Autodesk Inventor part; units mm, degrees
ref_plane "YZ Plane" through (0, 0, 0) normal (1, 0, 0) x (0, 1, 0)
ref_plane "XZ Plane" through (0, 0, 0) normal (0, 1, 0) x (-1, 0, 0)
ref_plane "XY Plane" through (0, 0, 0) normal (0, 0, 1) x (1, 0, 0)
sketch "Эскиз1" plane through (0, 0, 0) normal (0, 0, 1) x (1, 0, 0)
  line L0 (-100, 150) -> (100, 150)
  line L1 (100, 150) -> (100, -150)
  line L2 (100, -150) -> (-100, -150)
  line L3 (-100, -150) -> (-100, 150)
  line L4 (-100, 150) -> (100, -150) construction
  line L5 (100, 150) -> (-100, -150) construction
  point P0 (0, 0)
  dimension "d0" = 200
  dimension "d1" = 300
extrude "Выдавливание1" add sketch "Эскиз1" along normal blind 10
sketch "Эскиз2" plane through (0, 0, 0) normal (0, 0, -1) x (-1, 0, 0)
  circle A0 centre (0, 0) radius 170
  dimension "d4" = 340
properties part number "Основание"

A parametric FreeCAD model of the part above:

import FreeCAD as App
import Part
import Sketcher


def add_polygon(sketch, points):
    """Adds a closed chain of lines whose ends are joined by coincident constraints."""
    first, n = sketch.GeometryCount, len(points)
    for a, b in zip(points, points[1:] + points[:1]):
        sketch.addGeometry(Part.LineSegment(App.Vector(*a, 0), App.Vector(*b, 0)), False)
    for i in range(n):
        sketch.addConstraint(Sketcher.Constraint("Coincident", first + i, 2, first + (i + 1) % n, 1))

doc = App.newDocument("Part")
body = doc.addObject("PartDesign::Body", "Body")

# Sketch on XY plane
sketch1 = body.newObject("Sketcher::SketchObject", "Sketch")
sketch1.AttachmentSupport = (doc.getObject("XY_Plane"), [""])
sketch1.MapMode = "FlatFace"
add_polygon(sketch1, [(100, 150), (-100, 150), (-100, -150), (100, -150)])  # lines 0-3
sketch1.addConstraint(Sketcher.Constraint("Horizontal", 0))
sketch1.addConstraint(Sketcher.Constraint("Vertical", 1))
sketch1.addConstraint(Sketcher.Constraint("Horizontal", 2))
sketch1.addConstraint(Sketcher.Constraint("Vertical", 3))
sketch1.addConstraint(Sketcher.Constraint("Symmetric", 0, 2, 2, 2, -1, 1))
sketch1.addConstraint(Sketcher.Constraint("DistanceX", 0, 2, 0, 1, 200.0))
sketch1.addConstraint(Sketcher.Constraint("DistanceY", 1, 2, 1, 1, 300.0))
pad1 = body.newObject("PartDesign::Pad", "Pad")
pad1.Profile = sketch1
pad1.Length = 10

doc.recompute()
